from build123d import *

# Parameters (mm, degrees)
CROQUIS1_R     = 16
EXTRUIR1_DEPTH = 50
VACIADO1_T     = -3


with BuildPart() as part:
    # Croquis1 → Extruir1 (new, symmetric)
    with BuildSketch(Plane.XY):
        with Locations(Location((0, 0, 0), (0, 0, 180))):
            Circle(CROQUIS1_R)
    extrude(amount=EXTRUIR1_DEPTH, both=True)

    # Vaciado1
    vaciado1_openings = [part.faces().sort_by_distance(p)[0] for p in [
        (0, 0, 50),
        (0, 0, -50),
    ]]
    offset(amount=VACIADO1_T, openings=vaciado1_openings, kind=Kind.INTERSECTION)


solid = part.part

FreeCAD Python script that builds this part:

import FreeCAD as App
import Part
import Sketcher
Q = App.Units.Quantity


def faces_at(feature, points):
    """Names of the faces that lie closest to the given points."""
    faces = feature.Shape.Faces
    near = lambda p: min(range(len(faces)), key=lambda i: faces[i].distToShape(Part.Vertex(*p))[0])
    return sorted({f"Face{near(p) + 1}" for p in points})

doc = App.newDocument("Part")
body = doc.addObject("PartDesign::Body", "Body")

# Sketch on XY plane
sketch1 = body.newObject("Sketcher::SketchObject", "Sketch")
sketch1.AttachmentSupport = (doc.getObject("XY_Plane"), [""])
sketch1.MapMode = "FlatFace"
sketch1.addGeometry(Part.Circle(App.Vector(0, 0, 0), App.Vector(0, 0, 1), 16), False)
sketch1.addConstraint(Sketcher.Constraint("Coincident", 0, 3, -1, 1))
sketch1.addConstraint(Sketcher.Constraint("Diameter", 0, Q("32 mm")))
pad1 = body.newObject("PartDesign::Pad", "Pad")
pad1.Profile = sketch1
pad1.Length = 100
pad1.Midplane = True
doc.recompute()

thickness = body.newObject("PartDesign::Thickness", "Thickness")
thickness.Base = (pad1, faces_at(pad1, [(0, 0, 50), (0, 0, -50)]))
thickness.Value = 3
thickness.Reversed = True
thickness.Join = "Intersection"

doc.recompute()
